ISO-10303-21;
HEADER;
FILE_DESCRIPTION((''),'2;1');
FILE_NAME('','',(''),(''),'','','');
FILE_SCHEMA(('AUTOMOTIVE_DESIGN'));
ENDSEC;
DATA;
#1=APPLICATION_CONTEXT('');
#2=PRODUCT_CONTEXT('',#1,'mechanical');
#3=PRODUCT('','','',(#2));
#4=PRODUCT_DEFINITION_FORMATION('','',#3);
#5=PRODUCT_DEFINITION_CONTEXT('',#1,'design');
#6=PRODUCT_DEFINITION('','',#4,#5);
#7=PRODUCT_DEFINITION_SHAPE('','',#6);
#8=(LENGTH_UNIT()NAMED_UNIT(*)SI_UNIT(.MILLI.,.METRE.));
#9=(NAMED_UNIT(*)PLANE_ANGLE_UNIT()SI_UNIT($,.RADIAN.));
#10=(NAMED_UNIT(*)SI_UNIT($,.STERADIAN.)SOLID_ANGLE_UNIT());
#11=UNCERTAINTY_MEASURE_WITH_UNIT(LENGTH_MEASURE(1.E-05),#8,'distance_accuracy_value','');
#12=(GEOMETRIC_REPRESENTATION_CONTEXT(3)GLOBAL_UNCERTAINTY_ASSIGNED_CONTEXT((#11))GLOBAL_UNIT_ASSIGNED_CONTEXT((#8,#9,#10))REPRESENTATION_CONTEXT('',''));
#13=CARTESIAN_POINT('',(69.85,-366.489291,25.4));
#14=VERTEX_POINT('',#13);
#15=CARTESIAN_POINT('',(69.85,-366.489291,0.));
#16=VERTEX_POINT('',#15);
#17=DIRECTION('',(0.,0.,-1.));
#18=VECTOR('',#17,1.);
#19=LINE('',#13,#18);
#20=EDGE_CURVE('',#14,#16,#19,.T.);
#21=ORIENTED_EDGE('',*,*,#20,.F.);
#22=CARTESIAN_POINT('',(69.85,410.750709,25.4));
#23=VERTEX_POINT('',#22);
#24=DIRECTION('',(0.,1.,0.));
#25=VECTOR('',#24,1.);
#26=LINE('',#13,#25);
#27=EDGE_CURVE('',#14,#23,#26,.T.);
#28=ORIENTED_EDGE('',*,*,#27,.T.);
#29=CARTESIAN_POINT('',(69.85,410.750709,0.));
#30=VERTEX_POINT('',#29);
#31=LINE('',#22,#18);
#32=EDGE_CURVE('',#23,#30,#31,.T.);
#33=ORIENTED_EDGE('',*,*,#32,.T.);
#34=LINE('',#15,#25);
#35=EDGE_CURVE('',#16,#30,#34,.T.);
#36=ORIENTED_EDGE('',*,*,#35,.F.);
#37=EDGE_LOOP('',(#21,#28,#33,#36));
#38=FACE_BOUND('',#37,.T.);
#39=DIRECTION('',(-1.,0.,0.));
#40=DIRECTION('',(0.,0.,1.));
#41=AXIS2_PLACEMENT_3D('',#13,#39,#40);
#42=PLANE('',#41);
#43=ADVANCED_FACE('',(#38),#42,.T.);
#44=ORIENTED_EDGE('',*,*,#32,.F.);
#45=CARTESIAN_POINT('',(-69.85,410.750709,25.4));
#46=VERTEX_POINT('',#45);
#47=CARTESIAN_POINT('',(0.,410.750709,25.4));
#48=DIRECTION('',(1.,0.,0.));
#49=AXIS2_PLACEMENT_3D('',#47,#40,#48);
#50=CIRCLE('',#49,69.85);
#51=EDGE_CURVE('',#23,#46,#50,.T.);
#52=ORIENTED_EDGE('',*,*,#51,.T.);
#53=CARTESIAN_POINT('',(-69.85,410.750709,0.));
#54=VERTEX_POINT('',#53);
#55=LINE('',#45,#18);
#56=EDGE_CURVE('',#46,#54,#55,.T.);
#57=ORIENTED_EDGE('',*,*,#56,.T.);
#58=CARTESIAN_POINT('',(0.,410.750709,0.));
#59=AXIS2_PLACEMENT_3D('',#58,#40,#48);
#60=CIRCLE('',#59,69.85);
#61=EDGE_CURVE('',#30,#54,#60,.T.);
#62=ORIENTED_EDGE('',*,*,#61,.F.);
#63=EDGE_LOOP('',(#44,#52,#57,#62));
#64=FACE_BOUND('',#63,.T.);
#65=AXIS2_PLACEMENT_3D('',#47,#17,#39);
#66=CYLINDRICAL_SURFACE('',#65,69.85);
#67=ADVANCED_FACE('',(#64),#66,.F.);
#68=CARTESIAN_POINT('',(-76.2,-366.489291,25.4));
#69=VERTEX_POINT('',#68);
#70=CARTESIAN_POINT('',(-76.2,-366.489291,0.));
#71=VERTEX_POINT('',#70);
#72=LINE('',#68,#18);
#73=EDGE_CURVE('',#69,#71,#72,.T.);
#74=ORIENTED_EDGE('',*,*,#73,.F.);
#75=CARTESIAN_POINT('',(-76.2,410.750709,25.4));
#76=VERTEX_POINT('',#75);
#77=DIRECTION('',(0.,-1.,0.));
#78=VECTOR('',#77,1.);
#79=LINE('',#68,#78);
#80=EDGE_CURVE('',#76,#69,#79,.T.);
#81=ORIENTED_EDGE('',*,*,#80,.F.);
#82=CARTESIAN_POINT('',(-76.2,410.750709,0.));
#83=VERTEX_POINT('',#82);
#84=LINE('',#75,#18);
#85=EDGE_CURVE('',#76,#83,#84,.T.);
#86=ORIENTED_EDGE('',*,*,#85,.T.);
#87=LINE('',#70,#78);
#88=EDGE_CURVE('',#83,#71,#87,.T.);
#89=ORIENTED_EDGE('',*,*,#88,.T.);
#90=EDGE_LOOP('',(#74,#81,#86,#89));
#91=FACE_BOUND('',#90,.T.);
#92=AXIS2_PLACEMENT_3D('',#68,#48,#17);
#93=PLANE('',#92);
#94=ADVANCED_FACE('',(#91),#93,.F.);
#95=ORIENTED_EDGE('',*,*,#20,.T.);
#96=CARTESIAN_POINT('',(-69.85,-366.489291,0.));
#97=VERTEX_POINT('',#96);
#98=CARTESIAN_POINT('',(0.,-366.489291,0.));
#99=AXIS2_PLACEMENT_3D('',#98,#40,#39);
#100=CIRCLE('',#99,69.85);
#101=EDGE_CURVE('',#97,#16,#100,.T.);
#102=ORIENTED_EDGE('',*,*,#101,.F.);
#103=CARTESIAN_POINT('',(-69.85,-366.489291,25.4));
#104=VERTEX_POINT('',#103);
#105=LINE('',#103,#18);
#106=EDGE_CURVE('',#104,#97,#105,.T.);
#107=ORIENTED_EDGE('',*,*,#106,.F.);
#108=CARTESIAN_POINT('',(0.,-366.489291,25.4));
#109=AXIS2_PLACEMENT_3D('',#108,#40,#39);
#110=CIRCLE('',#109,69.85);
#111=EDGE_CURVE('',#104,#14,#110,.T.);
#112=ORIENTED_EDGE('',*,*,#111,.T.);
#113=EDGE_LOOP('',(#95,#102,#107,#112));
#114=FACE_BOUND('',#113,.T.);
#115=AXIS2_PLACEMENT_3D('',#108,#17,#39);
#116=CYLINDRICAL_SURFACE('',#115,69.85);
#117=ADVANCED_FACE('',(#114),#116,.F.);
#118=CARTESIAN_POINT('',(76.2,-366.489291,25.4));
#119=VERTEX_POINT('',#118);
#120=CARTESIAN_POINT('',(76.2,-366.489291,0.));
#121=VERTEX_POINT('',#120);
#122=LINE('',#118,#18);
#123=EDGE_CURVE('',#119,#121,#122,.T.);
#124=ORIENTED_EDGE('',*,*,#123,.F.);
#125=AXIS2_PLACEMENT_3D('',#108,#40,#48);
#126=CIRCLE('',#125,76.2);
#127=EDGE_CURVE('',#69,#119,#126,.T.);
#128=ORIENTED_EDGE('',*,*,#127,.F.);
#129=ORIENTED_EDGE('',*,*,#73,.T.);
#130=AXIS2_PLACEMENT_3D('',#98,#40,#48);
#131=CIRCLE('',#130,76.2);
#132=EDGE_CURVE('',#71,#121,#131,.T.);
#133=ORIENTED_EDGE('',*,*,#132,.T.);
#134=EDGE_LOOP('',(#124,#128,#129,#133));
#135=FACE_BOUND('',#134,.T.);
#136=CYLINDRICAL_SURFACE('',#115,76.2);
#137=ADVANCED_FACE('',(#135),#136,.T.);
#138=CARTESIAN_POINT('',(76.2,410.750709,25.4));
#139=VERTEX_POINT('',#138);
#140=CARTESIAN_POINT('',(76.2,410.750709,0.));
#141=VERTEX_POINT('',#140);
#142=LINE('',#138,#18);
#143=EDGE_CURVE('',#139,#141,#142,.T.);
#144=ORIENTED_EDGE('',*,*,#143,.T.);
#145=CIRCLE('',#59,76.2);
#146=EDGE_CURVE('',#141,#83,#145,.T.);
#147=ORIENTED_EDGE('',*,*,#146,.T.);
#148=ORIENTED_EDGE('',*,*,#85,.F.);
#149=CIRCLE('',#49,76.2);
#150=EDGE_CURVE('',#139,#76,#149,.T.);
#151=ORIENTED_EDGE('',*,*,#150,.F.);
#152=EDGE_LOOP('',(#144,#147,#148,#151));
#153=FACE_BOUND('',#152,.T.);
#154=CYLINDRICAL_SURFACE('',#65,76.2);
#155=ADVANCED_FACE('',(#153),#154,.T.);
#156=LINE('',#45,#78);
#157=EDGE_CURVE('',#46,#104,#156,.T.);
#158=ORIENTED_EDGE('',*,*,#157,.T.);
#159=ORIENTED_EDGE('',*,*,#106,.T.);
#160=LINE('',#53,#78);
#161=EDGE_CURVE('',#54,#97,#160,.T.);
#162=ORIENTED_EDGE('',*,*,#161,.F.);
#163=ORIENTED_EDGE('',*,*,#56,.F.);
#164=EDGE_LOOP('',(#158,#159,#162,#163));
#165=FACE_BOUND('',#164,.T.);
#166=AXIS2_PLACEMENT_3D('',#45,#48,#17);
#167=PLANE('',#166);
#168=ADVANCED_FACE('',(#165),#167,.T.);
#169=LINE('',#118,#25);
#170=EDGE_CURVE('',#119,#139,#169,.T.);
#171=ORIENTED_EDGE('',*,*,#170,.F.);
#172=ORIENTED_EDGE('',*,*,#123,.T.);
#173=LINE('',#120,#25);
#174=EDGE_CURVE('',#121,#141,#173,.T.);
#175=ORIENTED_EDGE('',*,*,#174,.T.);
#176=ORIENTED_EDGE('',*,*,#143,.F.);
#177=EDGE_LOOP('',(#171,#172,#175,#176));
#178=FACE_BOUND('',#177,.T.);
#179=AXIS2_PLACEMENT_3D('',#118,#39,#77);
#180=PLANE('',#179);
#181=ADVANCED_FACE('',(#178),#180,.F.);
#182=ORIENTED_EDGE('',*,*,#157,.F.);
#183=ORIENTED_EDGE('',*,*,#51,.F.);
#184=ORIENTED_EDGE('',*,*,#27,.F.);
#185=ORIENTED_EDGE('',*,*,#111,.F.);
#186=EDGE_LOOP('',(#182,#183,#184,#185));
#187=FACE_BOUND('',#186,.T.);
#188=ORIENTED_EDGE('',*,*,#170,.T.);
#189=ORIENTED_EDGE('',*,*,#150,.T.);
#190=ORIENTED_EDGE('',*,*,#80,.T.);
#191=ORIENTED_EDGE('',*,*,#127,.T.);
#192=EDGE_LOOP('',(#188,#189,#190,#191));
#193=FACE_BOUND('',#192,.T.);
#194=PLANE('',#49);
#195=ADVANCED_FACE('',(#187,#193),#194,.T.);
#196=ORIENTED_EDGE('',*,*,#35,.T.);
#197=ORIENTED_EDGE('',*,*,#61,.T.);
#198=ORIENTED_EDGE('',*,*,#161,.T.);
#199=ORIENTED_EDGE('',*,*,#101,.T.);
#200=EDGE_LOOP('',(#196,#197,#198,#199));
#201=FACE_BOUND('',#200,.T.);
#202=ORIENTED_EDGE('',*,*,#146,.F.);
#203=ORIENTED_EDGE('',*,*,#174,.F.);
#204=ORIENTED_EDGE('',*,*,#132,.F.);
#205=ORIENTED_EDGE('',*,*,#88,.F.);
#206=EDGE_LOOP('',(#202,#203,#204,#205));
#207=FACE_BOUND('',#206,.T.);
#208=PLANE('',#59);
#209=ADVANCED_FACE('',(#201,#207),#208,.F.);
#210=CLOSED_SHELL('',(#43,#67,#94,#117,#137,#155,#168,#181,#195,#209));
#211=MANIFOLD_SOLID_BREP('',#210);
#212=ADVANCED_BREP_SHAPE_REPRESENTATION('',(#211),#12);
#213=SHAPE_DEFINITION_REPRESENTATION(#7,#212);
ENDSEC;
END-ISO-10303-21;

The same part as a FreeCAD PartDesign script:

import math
import FreeCAD as App
import Part
import Sketcher

V = App.Vector
Q = App.Units.Quantity

doc = App.newDocument("Part")
body = doc.addObject("PartDesign::Body", "Body")

# Sketch on XY plane
sketch1 = body.newObject("Sketcher::SketchObject", "Sketch")
sketch1.AttachmentSupport = (doc.getObject("XY_Plane"), [""])
sketch1.MapMode = "FlatFace"
sketch1.addGeometry([
    Part.LineSegment(V(-76.2, 410.750709, 0), V(-76.2, -366.489291, 0)),  # 0
    Part.ArcOfCircle(Part.Circle(V(0, -366.489291, 0), V(0, 0, 1), 76.2), math.radians(180), math.radians(360)),  # 1
    Part.LineSegment(V(76.2, -366.489291, 0), V(76.2, 410.750709, 0)),  # 2
    Part.ArcOfCircle(Part.Circle(V(0, 410.750709, 0), V(0, 0, 1), 76.2), math.radians(0), math.radians(180)),  # 3
    Part.ArcOfCircle(Part.Circle(V(0, 410.750709, 0), V(0, 0, 1), 69.85), math.radians(0), math.radians(180)),  # 4
    Part.LineSegment(V(69.85, 410.750709, 0), V(69.85, -366.489291, 0)),  # 5
    Part.ArcOfCircle(Part.Circle(V(0, -366.489291, 0), V(0, 0, 1), 69.85), math.radians(180), math.radians(360)),  # 6
    Part.LineSegment(V(-69.85, -366.489291, 0), V(-69.85, 410.750709, 0)),  # 7
], False)
sketch1.addConstraint([
    Sketcher.Constraint("Tangent", 0, 2, 1, 1),
    Sketcher.Constraint("Tangent", 1, 2, 2, 1),
    Sketcher.Constraint("Tangent", 2, 2, 3, 1),
    Sketcher.Constraint("Tangent", 3, 2, 0, 1),
    Sketcher.Constraint("Tangent", 4, 1, 5, 1),
    Sketcher.Constraint("Tangent", 5, 2, 6, 2),
    Sketcher.Constraint("Tangent", 6, 1, 7, 1),
    Sketcher.Constraint("Tangent", 7, 2, 4, 2),
    Sketcher.Constraint("Vertical", 0),
    Sketcher.Constraint("Vertical", 2),
    Sketcher.Constraint("Vertical", 5),
    Sketcher.Constraint("Vertical", 7),
    Sketcher.Constraint("Coincident", 4, 3, 3, 3),
    Sketcher.Constraint("PointOnObject", 1, 3, -2),
    Sketcher.Constraint("Horizontal", 6, 3, 0, 2),
    Sketcher.Constraint("Radius", 1, Q("3 in")),
    Sketcher.Constraint("Radius", 4, Q("2.75 in")),
    Sketcher.Constraint("DistanceY", 0, 2, 0, 1, Q("30.6 in")),
    Sketcher.Constraint("DistanceY", 1, 3, -1, 1, Q("366.489291 mm")),
])
pad1 = body.newObject("PartDesign::Pad", "Pad")
pad1.Profile = sketch1
pad1.Length = Q("1 in")

doc.recompute()
